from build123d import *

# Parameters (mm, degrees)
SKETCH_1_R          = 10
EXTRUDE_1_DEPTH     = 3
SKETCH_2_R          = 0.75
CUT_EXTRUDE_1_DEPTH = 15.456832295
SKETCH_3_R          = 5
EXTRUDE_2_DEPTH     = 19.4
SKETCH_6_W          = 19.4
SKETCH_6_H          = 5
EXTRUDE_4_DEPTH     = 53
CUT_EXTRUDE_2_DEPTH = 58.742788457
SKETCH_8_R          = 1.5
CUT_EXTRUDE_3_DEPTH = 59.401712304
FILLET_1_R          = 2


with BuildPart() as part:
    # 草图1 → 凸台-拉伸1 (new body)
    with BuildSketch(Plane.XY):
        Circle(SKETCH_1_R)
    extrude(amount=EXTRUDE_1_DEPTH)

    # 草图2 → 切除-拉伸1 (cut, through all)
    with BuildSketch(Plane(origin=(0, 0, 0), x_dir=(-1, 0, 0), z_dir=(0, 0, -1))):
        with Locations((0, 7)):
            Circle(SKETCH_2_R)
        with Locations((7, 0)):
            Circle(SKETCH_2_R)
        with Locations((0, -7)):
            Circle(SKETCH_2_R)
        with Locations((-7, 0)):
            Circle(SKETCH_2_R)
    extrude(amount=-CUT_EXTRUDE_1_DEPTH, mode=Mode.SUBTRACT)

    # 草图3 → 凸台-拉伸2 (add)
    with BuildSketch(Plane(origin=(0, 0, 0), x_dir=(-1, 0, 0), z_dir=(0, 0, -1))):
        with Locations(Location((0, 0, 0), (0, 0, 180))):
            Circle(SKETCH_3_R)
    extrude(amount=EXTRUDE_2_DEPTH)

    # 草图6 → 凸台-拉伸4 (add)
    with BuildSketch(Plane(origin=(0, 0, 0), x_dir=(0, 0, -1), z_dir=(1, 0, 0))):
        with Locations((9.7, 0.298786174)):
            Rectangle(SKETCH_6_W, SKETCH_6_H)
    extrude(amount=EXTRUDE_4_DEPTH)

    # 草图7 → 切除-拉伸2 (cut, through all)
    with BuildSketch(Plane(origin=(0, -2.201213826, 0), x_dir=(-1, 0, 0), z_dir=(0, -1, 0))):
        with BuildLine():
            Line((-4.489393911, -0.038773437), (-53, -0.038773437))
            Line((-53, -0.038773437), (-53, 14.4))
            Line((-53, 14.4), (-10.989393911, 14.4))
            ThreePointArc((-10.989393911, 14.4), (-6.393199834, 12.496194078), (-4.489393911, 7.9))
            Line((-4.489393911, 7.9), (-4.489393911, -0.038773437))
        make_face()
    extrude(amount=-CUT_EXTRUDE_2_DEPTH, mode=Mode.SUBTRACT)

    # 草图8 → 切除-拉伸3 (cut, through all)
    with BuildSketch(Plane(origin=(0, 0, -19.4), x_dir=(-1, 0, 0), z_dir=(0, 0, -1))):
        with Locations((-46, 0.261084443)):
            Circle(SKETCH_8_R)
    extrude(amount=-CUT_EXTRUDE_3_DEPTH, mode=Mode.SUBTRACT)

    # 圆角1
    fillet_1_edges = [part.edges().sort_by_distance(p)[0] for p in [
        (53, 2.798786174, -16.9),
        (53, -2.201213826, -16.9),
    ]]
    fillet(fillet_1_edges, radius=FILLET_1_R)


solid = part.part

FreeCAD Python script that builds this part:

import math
import FreeCAD as App
import Part
import Sketcher

V = App.Vector


def edges_at(feature, points):
    """Names of the edges that pass closest to the given points."""
    edges = feature.Shape.Edges
    near = lambda p: min(range(len(edges)), key=lambda i: edges[i].distToShape(Part.Vertex(*p))[0])
    return sorted({f"Edge{near(p) + 1}" for p in points})

doc = App.newDocument("Part")
params = doc.addObject("Spreadsheet::Sheet", "Params")
for row, (alias, value) in enumerate([
    ("sketch1_diameter", "20 mm"),
    ("pad1_length", "3 mm"),
    ("sketch2_diameter", "1.5 mm"),
    ("sketch3_diameter", "10 mm"),
    ("pad2_length", "19.4 mm"),
    ("sketch4_width", "5 mm"),
    ("sketch4_height", "19.4 mm"),
    ("pad3_length", "53 mm"),
    ("sketch5_radius", "6.5 mm"),
    ("sketch6_diameter", "3 mm"),
    ("fillet_radius", "2 mm"),
], start=1):
    params.set(f"A{row}", alias)
    params.set(f"B{row}", "=" + value)
    params.setAlias(f"B{row}", alias)

body = doc.addObject("PartDesign::Body", "Body")

sketch1 = body.newObject("Sketcher::SketchObject", "Sketch")
sketch1.AttachmentSupport = (doc.getObject("XY_Plane"), [""])
sketch1.MapMode = "FlatFace"
sketch1.addGeometry(Part.Circle(V(0, 0, 0), V(0, 0, 1), 10), False)
sketch1.addConstraint(Sketcher.Constraint("Coincident", 0, 3, -1, 1))
sketch1.addConstraint(Sketcher.Constraint("Diameter", 0, 20.0))
sketch1.setExpression("Constraints[1]", "Params.sketch1_diameter")
pad1 = body.newObject("PartDesign::Pad", "Pad")
pad1.Profile = sketch1
pad1.setExpression("Length", "Params.pad1_length")

sketch2 = body.newObject("Sketcher::SketchObject", "Sketch001")
sketch2.AttachmentSupport = (doc.getObject("XY_Plane"), [""])
sketch2.MapMode = "FlatFace"
sketch2.addGeometry(Part.Circle(V(0, 7, 0), V(0, 0, 1), 0.8), False)
sketch2.addGeometry(Part.Circle(V(-7, 0, 0), V(0, 0, 1), 0.8), False)
sketch2.addGeometry(Part.Circle(V(0, -7, 0), V(0, 0, 1), 0.8), False)
sketch2.addGeometry(Part.Circle(V(7, 0, 0), V(0, 0, 1), 0.8), False)
sketch2.addConstraint(Sketcher.Constraint("Equal", 0, 1))
sketch2.addConstraint(Sketcher.Constraint("Equal", 1, 2))
sketch2.addConstraint(Sketcher.Constraint("Equal", 2, 3))
sketch2.addConstraint(Sketcher.Constraint("Symmetric", 0, 3, 2, 3, -1, 1))
sketch2.addConstraint(Sketcher.Constraint("Symmetric", 1, 3, 3, 3, -1, 1))
sketch2.addConstraint(Sketcher.Constraint("PointOnObject", 0, 3, -2))
sketch2.addConstraint(Sketcher.Constraint("PointOnObject", 1, 3, -1))
sketch2.addConstraint(Sketcher.Constraint("Diameter", 0, 1.5))
sketch2.addConstraint(Sketcher.Constraint("DistanceY", -1, 1, 0, 3, 7.0))
sketch2.addConstraint(Sketcher.Constraint("DistanceX", 1, 3, -1, 1, 7.0))
sketch2.setExpression("Constraints[7]", "Params.sketch2_diameter")
pocket1 = body.newObject("PartDesign::Pocket", "Pocket")
pocket1.Profile = sketch2
pocket1.Type = "ThroughAll"
pocket1.Reversed = True

sketch3 = body.newObject("Sketcher::SketchObject", "Sketch002")
sketch3.AttachmentSupport = (doc.getObject("XY_Plane"), [""])
sketch3.MapMode = "FlatFace"
sketch3.addGeometry(Part.Circle(V(0, 0, 0), V(0, 0, 1), 5), False)
sketch3.addConstraint(Sketcher.Constraint("Coincident", 0, 3, -1, 1))
sketch3.addConstraint(Sketcher.Constraint("Diameter", 0, 10.0))
sketch3.setExpression("Constraints[1]", "Params.sketch3_diameter")
pad2 = body.newObject("PartDesign::Pad", "Pad001")
pad2.Profile = sketch3
pad2.setExpression("Length", "Params.pad2_length")
pad2.Reversed = True

sketch4 = body.newObject("Sketcher::SketchObject", "Sketch003")
sketch4.AttachmentSupport = (doc.getObject("YZ_Plane"), [""])
sketch4.MapMode = "FlatFace"
sketch4.addGeometry(Part.LineSegment(V(3, 0, 0), V(-2, 0, 0)), False)
sketch4.addGeometry(Part.LineSegment(V(-2, 0, 0), V(-2, -19, 0)), False)
sketch4.addGeometry(Part.LineSegment(V(-2, -19, 0), V(3, -19, 0)), False)
sketch4.addGeometry(Part.LineSegment(V(3, -19, 0), V(3, 0, 0)), False)
sketch4.addConstraint(Sketcher.Constraint("Coincident", 0, 2, 1, 1))
sketch4.addConstraint(Sketcher.Constraint("Coincident", 1, 2, 2, 1))
sketch4.addConstraint(Sketcher.Constraint("Coincident", 2, 2, 3, 1))
sketch4.addConstraint(Sketcher.Constraint("Coincident", 3, 2, 0, 1))
sketch4.addConstraint(Sketcher.Constraint("Horizontal", 0))
sketch4.addConstraint(Sketcher.Constraint("Vertical", 1))
sketch4.addConstraint(Sketcher.Constraint("Horizontal", 2))
sketch4.addConstraint(Sketcher.Constraint("Vertical", 3))
sketch4.addConstraint(Sketcher.Constraint("PointOnObject", 0, 2, -1))
sketch4.addConstraint(Sketcher.Constraint("DistanceX", 0, 2, 0, 1, 5.0))
sketch4.addConstraint(Sketcher.Constraint("DistanceY", 1, 2, 1, 1, 19.4))
sketch4.addConstraint(Sketcher.Constraint("DistanceX", 0, 2, -1, 1, 2.201214))
sketch4.setExpression("Constraints[9]", "Params.sketch4_width")
sketch4.setExpression("Constraints[10]", "Params.sketch4_height")
pad3 = body.newObject("PartDesign::Pad", "Pad002")
pad3.Profile = sketch4
pad3.setExpression("Length", "Params.pad3_length")

sketch5 = body.newObject("Sketcher::SketchObject", "Sketch004")
sketch5.AttachmentSupport = (doc.getObject("XZ_Plane"), [""])
sketch5.MapMode = "FlatFace"
sketch5.AttachmentOffset = App.Placement(V(0, 0, 2.201214), App.Rotation())
sketch5.addGeometry(Part.LineSegment(V(53, 0, 0), V(4, 0, 0)), False)
sketch5.addGeometry(Part.LineSegment(V(4, 0, 0), V(4, -8, 0)), False)
sketch5.addGeometry(Part.ArcOfCircle(Part.Circle(V(11, -8, 0), V(0, 0, 1), 7), math.radians(-180), math.radians(-90)), False)
sketch5.addGeometry(Part.LineSegment(V(11, -14, 0), V(53, -14, 0)), False)
sketch5.addGeometry(Part.LineSegment(V(53, -14, 0), V(53, 0, 0)), False)
sketch5.addConstraint(Sketcher.Constraint("Coincident", 0, 2, 1, 1))
sketch5.addConstraint(Sketcher.Constraint("Tangent", 1, 2, 2, 1))
sketch5.addConstraint(Sketcher.Constraint("Tangent", 2, 2, 3, 1))
sketch5.addConstraint(Sketcher.Constraint("Coincident", 3, 2, 4, 1))
sketch5.addConstraint(Sketcher.Constraint("Coincident", 4, 2, 0, 1))
sketch5.addConstraint(Sketcher.Constraint("Horizontal", 0))
sketch5.addConstraint(Sketcher.Constraint("Vertical", 1))
sketch5.addConstraint(Sketcher.Constraint("Horizontal", 3))
sketch5.addConstraint(Sketcher.Constraint("Vertical", 4))
sketch5.addConstraint(Sketcher.Constraint("Radius", 2, 6.5))
sketch5.addConstraint(Sketcher.Constraint("DistanceX", -1, 1, 3, 2, 53.0))
sketch5.addConstraint(Sketcher.Constraint("DistanceY", 2, 3, -1, 1, 7.9))
sketch5.addConstraint(Sketcher.Constraint("DistanceX", 0, 2, 0, 1, 48.510606))
sketch5.addConstraint(Sketcher.Constraint("DistanceY", 1, 2, 1, 1, 7.938773))
sketch5.setExpression("Constraints[9]", "Params.sketch5_radius")
pocket2 = body.newObject("PartDesign::Pocket", "Pocket001")
pocket2.Profile = sketch5
pocket2.Type = "ThroughAll"

sketch6 = body.newObject("Sketcher::SketchObject", "Sketch005")
sketch6.AttachmentSupport = (doc.getObject("XY_Plane"), [""])
sketch6.MapMode = "FlatFace"
sketch6.AttachmentOffset = App.Placement(V(0, 0, -19.4), App.Rotation())
sketch6.addGeometry(Part.Circle(V(46, 0.3, 0), V(0, 0, 1), 1.5), False)
sketch6.addConstraint(Sketcher.Constraint("Diameter", 0, 3.0))
sketch6.addConstraint(Sketcher.Constraint("DistanceX", -1, 1, 0, 3, 46.0))
sketch6.addConstraint(Sketcher.Constraint("DistanceY", -1, 1, 0, 3, 0.261084))
sketch6.setExpression("Constraints[0]", "Params.sketch6_diameter")
pocket3 = body.newObject("PartDesign::Pocket", "Pocket002")
pocket3.Profile = sketch6
pocket3.Type = "ThroughAll"
pocket3.Reversed = True
doc.recompute()

fillet = body.newObject("PartDesign::Fillet", "Fillet")
fillet.Base = (pocket3, edges_at(pocket3, [(53, 2.799, -16.9), (53, -2.201, -16.9)]))
fillet.setExpression("Radius", "Params.fillet_radius")

doc.recompute()
